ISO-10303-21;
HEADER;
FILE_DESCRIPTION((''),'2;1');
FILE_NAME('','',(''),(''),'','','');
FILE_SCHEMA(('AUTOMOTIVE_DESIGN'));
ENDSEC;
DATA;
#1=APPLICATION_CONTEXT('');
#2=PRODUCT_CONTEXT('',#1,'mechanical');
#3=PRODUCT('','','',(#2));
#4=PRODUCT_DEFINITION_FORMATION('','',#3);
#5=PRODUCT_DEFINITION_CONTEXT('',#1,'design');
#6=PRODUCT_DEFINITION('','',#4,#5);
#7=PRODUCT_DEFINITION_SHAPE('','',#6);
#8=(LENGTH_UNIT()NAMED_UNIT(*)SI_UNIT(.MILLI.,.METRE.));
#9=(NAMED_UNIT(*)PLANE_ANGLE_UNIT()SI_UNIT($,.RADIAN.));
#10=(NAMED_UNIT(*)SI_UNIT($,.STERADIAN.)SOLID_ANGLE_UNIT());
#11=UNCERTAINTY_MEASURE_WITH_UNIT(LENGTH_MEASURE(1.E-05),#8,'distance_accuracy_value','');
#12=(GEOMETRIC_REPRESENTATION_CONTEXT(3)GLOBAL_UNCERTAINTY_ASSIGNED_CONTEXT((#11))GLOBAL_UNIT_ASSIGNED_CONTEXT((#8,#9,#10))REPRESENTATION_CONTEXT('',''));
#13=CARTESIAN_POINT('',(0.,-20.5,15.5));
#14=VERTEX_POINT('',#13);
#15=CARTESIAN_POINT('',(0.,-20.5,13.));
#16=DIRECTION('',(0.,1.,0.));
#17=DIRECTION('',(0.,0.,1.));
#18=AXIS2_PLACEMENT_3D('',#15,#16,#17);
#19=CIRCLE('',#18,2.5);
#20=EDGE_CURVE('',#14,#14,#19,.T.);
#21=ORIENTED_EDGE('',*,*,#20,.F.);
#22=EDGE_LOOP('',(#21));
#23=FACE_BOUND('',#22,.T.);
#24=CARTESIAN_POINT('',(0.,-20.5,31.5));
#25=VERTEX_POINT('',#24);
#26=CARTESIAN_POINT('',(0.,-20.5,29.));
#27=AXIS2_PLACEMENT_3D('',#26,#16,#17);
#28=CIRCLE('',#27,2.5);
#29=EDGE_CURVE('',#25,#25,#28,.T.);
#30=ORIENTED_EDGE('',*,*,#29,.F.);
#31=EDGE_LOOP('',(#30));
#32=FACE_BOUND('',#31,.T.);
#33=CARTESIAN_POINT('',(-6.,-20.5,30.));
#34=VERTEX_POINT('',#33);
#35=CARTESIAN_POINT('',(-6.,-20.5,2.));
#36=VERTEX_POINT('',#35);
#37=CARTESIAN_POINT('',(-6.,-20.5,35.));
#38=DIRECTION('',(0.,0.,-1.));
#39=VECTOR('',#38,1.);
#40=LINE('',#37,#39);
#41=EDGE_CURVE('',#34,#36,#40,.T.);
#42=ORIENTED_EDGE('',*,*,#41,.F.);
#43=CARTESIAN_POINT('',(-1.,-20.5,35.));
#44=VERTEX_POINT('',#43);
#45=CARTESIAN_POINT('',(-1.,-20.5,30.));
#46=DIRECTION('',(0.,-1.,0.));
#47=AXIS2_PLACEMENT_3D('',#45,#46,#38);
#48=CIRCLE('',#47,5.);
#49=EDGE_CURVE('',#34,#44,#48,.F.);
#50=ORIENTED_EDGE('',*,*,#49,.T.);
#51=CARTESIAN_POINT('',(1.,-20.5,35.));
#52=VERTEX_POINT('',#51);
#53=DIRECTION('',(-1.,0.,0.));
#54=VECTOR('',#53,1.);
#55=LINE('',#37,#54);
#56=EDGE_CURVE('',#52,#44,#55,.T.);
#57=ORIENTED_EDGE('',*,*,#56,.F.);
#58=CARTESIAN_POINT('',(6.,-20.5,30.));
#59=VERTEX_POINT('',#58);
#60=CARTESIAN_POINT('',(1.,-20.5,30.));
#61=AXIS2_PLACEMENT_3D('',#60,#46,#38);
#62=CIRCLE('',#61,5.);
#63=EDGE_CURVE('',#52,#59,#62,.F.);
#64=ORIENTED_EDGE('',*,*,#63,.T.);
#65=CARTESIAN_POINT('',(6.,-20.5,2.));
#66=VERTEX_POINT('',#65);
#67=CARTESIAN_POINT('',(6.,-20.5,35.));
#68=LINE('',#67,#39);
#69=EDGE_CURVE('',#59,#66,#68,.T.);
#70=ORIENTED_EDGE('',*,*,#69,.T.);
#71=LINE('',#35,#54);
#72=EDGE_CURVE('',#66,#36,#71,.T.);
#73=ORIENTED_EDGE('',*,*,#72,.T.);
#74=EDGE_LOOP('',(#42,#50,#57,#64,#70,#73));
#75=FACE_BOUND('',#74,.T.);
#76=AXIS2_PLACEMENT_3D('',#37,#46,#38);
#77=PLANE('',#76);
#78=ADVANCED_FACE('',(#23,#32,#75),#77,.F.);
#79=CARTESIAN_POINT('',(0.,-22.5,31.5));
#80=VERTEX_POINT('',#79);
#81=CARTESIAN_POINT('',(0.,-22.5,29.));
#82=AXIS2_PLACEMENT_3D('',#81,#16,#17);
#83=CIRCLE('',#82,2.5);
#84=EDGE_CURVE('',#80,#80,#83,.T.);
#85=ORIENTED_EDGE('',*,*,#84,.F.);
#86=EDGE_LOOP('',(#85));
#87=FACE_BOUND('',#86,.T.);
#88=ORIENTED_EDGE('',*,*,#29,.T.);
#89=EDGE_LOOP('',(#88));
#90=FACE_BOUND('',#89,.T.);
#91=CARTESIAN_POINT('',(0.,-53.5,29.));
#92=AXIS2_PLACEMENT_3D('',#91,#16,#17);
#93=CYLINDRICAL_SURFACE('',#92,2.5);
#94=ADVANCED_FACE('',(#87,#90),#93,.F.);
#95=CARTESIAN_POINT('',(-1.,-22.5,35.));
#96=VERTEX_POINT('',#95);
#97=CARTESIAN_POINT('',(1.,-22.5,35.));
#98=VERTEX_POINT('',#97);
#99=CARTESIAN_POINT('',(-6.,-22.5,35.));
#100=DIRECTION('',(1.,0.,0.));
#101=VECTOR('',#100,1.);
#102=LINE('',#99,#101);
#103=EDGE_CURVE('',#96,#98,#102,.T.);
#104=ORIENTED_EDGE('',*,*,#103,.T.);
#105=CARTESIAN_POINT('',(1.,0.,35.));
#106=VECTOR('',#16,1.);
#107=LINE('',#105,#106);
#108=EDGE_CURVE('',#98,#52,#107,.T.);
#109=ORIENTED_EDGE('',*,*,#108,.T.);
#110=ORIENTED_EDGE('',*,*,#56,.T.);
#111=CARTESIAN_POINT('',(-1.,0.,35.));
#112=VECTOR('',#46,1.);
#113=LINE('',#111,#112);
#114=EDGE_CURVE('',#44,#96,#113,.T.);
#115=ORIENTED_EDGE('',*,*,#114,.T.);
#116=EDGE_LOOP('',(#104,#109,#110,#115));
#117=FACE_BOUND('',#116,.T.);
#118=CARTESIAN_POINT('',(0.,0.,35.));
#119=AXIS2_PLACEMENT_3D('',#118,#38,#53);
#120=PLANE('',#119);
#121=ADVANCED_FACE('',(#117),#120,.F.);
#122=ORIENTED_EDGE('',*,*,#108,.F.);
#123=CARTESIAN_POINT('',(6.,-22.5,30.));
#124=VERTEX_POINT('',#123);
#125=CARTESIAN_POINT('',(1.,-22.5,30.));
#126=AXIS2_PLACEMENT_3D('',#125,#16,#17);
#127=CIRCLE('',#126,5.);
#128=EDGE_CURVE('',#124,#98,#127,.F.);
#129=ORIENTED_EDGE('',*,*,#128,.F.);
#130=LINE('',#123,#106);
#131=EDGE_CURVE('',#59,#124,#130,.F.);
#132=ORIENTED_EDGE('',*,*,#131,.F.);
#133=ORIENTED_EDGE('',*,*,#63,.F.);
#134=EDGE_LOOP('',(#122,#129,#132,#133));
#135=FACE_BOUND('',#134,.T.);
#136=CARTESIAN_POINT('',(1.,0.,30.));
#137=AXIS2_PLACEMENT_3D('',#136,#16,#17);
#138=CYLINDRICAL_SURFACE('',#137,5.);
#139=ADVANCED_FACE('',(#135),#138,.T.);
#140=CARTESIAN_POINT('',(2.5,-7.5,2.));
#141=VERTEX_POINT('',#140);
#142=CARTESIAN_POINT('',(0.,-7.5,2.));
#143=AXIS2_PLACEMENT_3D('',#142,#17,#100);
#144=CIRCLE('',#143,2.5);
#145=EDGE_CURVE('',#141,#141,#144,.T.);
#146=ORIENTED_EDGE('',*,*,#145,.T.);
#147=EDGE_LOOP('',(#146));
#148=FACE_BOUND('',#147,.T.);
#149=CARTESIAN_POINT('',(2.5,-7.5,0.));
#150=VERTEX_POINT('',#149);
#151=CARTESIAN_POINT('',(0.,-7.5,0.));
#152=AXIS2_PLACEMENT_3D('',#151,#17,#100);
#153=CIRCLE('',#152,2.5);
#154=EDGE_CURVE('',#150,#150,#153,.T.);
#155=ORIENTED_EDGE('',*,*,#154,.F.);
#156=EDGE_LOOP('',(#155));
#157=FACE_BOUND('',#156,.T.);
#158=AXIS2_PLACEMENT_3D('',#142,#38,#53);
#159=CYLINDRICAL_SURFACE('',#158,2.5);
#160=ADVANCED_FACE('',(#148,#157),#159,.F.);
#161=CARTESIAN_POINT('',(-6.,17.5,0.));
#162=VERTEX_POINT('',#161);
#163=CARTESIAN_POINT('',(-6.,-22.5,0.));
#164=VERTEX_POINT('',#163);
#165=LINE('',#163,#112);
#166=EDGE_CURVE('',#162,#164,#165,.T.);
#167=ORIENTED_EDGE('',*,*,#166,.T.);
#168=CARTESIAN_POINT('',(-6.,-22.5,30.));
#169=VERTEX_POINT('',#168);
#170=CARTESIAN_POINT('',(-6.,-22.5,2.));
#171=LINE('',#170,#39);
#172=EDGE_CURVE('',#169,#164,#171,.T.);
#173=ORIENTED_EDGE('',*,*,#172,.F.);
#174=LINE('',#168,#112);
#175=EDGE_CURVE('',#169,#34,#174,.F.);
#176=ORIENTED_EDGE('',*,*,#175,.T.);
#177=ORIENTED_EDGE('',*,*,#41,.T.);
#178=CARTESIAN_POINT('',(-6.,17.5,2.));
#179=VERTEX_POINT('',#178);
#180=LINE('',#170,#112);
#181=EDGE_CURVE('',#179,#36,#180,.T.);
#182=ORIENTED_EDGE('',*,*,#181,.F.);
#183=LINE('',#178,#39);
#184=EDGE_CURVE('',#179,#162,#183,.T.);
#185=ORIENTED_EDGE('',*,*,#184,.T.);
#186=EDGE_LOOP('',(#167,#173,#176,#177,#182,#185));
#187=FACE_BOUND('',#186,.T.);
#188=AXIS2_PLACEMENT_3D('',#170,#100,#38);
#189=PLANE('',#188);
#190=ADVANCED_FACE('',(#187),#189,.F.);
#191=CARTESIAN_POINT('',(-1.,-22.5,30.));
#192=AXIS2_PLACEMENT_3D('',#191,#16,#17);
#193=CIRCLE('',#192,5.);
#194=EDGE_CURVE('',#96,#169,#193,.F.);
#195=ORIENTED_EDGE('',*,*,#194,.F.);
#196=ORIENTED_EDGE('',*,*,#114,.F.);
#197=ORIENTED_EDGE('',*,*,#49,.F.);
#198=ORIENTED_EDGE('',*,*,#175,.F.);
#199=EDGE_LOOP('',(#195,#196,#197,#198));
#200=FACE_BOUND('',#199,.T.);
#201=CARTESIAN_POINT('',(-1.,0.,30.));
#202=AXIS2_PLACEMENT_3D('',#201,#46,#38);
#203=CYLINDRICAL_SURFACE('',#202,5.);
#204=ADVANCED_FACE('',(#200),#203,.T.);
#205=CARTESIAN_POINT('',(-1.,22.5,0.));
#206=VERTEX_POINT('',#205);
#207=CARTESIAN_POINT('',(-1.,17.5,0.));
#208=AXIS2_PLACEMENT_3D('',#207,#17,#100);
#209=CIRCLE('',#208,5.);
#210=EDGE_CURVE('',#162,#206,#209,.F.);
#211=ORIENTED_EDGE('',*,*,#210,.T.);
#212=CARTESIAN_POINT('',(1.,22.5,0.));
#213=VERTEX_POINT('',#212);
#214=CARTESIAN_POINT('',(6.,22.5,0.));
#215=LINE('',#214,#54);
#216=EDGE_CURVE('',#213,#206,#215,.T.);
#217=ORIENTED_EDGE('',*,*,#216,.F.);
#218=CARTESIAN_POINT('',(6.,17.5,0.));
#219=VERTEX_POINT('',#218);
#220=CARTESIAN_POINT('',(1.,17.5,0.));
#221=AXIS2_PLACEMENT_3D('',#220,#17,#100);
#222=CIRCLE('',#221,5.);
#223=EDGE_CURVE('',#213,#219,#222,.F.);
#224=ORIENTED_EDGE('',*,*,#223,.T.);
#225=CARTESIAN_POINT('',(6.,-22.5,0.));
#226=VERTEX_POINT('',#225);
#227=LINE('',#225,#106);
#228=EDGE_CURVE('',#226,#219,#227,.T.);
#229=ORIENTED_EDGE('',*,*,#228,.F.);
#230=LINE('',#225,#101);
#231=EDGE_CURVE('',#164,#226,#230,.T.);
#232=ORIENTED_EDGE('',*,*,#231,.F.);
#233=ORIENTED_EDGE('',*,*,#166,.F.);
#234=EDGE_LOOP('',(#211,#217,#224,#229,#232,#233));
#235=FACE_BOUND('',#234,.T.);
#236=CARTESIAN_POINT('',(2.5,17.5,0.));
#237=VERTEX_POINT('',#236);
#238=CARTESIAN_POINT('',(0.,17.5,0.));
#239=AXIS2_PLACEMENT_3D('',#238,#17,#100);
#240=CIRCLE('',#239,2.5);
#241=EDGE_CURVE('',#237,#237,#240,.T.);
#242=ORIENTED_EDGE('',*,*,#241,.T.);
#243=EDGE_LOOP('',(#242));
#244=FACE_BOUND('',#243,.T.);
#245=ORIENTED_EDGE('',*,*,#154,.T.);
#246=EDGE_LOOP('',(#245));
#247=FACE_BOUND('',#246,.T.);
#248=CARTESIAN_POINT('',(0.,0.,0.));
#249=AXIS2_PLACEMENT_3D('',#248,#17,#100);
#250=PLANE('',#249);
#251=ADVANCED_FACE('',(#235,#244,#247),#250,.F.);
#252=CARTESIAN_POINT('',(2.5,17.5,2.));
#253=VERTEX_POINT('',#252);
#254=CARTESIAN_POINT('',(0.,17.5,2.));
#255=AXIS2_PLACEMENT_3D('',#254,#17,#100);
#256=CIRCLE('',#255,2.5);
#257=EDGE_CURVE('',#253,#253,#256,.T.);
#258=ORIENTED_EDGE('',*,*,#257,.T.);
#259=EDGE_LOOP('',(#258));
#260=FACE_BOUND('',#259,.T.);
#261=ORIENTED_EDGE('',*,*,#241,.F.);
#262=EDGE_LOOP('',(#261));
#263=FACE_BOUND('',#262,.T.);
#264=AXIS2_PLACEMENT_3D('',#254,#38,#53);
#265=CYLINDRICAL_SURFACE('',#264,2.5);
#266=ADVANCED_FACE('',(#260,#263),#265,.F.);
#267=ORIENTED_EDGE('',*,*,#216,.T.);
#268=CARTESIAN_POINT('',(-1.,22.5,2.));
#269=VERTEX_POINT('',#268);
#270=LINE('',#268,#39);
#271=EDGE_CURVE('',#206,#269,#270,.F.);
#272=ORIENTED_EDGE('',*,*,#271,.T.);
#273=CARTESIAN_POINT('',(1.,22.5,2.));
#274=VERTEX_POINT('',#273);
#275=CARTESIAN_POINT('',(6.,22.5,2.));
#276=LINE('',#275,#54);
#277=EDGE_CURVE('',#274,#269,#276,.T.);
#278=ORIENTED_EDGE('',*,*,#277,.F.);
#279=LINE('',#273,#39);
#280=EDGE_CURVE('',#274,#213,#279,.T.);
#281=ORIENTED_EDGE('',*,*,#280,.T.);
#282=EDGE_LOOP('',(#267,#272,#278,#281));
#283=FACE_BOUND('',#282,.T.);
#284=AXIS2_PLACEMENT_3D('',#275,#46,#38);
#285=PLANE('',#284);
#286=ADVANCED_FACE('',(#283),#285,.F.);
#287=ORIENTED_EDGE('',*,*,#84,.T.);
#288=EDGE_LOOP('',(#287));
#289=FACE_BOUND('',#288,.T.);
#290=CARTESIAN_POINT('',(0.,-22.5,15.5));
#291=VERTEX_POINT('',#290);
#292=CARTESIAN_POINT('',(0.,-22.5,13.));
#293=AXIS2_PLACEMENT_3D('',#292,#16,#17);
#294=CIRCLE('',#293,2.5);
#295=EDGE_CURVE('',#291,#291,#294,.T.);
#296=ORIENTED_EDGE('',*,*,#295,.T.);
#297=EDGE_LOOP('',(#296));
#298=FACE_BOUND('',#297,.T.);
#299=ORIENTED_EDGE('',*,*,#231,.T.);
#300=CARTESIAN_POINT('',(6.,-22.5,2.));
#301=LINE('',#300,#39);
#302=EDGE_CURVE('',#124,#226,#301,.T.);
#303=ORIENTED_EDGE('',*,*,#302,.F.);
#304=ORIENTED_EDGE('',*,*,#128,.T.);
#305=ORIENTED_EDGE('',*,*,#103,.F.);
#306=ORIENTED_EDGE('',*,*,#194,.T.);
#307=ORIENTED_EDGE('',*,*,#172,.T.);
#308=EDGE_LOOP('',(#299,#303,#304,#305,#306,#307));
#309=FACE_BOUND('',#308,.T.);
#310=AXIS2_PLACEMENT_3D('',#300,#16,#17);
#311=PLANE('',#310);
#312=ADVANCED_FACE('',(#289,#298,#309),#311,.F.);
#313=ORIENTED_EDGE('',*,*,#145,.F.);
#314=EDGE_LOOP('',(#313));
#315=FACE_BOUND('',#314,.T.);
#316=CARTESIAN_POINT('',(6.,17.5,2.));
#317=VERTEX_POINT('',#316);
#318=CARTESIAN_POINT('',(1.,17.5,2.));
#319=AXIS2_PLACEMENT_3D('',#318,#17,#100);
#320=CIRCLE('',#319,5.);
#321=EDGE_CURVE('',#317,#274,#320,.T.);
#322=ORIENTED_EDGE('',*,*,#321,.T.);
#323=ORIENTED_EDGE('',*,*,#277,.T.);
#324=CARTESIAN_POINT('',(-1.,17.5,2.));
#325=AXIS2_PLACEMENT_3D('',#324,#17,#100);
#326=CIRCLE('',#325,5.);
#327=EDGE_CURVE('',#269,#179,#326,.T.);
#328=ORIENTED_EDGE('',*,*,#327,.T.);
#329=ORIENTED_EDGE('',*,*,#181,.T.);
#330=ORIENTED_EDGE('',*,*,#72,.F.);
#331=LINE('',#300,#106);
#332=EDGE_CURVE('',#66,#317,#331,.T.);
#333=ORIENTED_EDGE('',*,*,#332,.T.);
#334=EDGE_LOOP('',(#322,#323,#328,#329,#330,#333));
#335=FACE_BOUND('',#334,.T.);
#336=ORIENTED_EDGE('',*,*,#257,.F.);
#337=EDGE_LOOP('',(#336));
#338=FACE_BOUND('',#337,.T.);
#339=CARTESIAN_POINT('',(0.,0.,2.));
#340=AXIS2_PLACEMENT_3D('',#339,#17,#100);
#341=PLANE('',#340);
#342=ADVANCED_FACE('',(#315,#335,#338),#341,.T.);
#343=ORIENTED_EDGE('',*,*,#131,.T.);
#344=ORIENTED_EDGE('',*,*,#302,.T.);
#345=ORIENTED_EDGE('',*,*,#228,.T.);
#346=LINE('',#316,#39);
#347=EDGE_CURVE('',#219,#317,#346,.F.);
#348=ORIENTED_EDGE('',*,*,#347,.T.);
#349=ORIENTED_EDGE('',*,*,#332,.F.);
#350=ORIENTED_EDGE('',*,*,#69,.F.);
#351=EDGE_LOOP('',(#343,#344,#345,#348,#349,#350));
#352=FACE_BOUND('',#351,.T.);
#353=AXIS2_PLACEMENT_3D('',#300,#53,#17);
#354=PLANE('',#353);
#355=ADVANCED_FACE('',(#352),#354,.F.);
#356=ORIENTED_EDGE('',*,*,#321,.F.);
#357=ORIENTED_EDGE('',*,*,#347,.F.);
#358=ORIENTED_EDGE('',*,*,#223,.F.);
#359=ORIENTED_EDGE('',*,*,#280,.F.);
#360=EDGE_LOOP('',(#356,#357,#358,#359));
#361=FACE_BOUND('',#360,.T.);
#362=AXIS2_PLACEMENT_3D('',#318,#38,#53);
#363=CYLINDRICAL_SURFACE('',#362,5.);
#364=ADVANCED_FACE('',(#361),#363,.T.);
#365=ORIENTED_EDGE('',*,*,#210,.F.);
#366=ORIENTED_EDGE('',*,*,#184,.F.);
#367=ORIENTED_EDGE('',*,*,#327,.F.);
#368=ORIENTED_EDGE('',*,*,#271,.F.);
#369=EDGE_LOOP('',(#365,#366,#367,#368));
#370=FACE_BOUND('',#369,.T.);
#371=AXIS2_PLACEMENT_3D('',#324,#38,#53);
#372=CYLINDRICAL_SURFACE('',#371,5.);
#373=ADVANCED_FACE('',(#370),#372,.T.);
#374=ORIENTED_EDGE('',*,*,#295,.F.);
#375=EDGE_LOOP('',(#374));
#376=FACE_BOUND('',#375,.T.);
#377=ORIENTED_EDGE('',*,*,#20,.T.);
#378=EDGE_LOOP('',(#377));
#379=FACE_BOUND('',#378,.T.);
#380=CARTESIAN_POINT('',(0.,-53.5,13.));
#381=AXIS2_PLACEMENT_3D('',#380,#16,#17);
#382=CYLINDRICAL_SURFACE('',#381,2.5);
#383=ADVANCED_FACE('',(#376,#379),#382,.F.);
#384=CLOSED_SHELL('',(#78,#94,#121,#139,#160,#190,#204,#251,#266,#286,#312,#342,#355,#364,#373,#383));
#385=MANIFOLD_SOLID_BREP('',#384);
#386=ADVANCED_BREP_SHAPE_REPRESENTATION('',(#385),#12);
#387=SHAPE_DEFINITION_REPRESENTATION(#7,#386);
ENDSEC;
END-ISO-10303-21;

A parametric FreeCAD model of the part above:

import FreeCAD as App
import Part
import Sketcher

V = App.Vector


def edges_at(feature, points):
    """Names of the edges that pass closest to the given points."""
    edges = feature.Shape.Edges
    near = lambda p: min(range(len(edges)), key=lambda i: edges[i].distToShape(Part.Vertex(*p))[0])
    return sorted({f"Edge{near(p) + 1}" for p in points})

doc = App.newDocument("Part")
body = doc.addObject("PartDesign::Body", "Body")

# Sketch on XY plane
sketch1 = body.newObject("Sketcher::SketchObject", "Sketch")
sketch1.AttachmentSupport = (doc.getObject("XY_Plane"), [""])
sketch1.MapMode = "FlatFace"
sketch1.addGeometry([
    Part.LineSegment(V(-6, 22.5, 0), V(-6, -22.5, 0)),  # 0
    Part.LineSegment(V(-6, -22.5, 0), V(6, -22.5, 0)),  # 1
    Part.LineSegment(V(6, -22.5, 0), V(6, 22.5, 0)),  # 2
    Part.LineSegment(V(6, 22.5, 0), V(-6, 22.5, 0)),  # 3
    Part.Circle(V(0, -7.5, 0), V(0, 0, 1), 2.5),  # 4
    Part.Circle(V(0, 17.5, 0), V(0, 0, 1), 2.5),  # 5
], False)
sketch1.addConstraint([
    Sketcher.Constraint("Coincident", 0, 2, 1, 1),
    Sketcher.Constraint("Coincident", 1, 2, 2, 1),
    Sketcher.Constraint("Coincident", 2, 2, 3, 1),
    Sketcher.Constraint("Coincident", 3, 2, 0, 1),
    Sketcher.Constraint("Vertical", 0),
    Sketcher.Constraint("Horizontal", 1),
    Sketcher.Constraint("Vertical", 2),
    Sketcher.Constraint("Horizontal", 3),
    Sketcher.Constraint("Equal", 4, 5),
    Sketcher.Constraint("Symmetric", 0, 2, 2, 2, -1, 1),
    Sketcher.Constraint("PointOnObject", 4, 3, -2),
    Sketcher.Constraint("PointOnObject", 5, 3, -2),
    Sketcher.Constraint("Diameter", 4, 5.0),
    Sketcher.Constraint("DistanceX", 1, 1, 1, 2, 12.0),
    Sketcher.Constraint("DistanceY", 0, 2, 0, 1, 45.0),
    Sketcher.Constraint("DistanceY", 4, 3, 5, 3, 25.0),
    Sketcher.Constraint("DistanceY", 0, 2, 4, 3, 15.0),
])
pad1 = body.newObject("PartDesign::Pad", "Pad")
pad1.Profile = sketch1
pad1.Length = 2
doc.recompute()

fillet = body.newObject("PartDesign::Fillet", "Fillet")
fillet.Base = (pad1, edges_at(pad1, [(-6, 22.5, 1), (6, 22.5, 1)]))
fillet.Radius = 5

# Sketch on XY plane
sketch2 = body.newObject("Sketcher::SketchObject", "Sketch001")
sketch2.AttachmentSupport = (doc.getObject("XY_Plane"), [""])
sketch2.MapMode = "FlatFace"
sketch2.AttachmentOffset = App.Placement(V(0, 0, 2), App.Rotation())
sketch2.addGeometry([
    Part.LineSegment(V(-6, -20.5, 0), V(-6, -22.5, 0)),
    Part.LineSegment(V(-6, -22.5, 0), V(6, -22.5, 0)),
    Part.LineSegment(V(6, -22.5, 0), V(6, -20.5, 0)),
    Part.LineSegment(V(6, -20.5, 0), V(-6, -20.5, 0)),
], False)
sketch2.addConstraint([
    Sketcher.Constraint("Coincident", 0, 2, 1, 1),
    Sketcher.Constraint("Coincident", 1, 2, 2, 1),
    Sketcher.Constraint("Coincident", 2, 2, 3, 1),
    Sketcher.Constraint("Coincident", 3, 2, 0, 1),
    Sketcher.Constraint("Vertical", 0),
    Sketcher.Constraint("Horizontal", 1),
    Sketcher.Constraint("Vertical", 2),
    Sketcher.Constraint("Horizontal", 3),
    Sketcher.Constraint("DistanceX", 1, 1, 1, 2, 12.0),
    Sketcher.Constraint("DistanceY", 0, 2, 0, 1, 2.0),
    Sketcher.Constraint("DistanceX", 0, 2, -1, 1, 6.0),
    Sketcher.Constraint("DistanceY", 0, 2, -1, 1, 22.5),
])
pad2 = body.newObject("PartDesign::Pad", "Pad001")
pad2.Profile = sketch2
pad2.Length = 33

# Sketch on XZ plane
sketch3 = body.newObject("Sketcher::SketchObject", "Sketch002")
sketch3.AttachmentSupport = (doc.getObject("XZ_Plane"), [""])
sketch3.MapMode = "FlatFace"
sketch3.AttachmentOffset = App.Placement(V(0, 0, 20.5), App.Rotation())
sketch3.addGeometry([
    Part.Circle(V(0, 13, 0), V(0, 0, 1), 2.5),
    Part.Circle(V(0, 29, 0), V(0, 0, 1), 2.5),
], False)
sketch3.addConstraint([
    Sketcher.Constraint("Equal", 0, 1),
    Sketcher.Constraint("PointOnObject", 0, 3, -2),
    Sketcher.Constraint("PointOnObject", 1, 3, -2),
    Sketcher.Constraint("Diameter", 0, 5.0),
    Sketcher.Constraint("DistanceY", -1, 1, 0, 3, 13.0),
    Sketcher.Constraint("DistanceY", -1, 1, 1, 3, 29.0),
])
pocket1 = body.newObject("PartDesign::Pocket", "Pocket")
pocket1.Profile = sketch3
pocket1.Length = 33
pocket1.Reversed = True
doc.recompute()

fillet2 = body.newObject("PartDesign::Fillet", "Fillet001")
fillet2.Base = (pocket1, edges_at(pocket1, [(-6, -21.5, 35), (6, -21.5, 35)]))
fillet2.Radius = 5

doc.recompute()
